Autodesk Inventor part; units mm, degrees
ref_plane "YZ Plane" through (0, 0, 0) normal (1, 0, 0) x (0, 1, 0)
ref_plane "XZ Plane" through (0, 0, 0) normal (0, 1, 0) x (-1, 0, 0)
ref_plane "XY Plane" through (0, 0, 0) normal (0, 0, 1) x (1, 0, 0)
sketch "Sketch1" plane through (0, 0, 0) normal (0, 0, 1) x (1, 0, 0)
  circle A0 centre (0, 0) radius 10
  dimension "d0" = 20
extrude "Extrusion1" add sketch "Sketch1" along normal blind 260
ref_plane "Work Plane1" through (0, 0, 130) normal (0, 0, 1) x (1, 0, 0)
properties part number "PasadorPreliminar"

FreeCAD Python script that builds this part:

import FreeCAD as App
import Part
import Sketcher

V = App.Vector
Q = App.Units.Quantity

doc = App.newDocument("Part")
body = doc.addObject("PartDesign::Body", "Body")

# Sketch on XY plane
sketch1 = body.newObject("Sketcher::SketchObject", "Sketch")
sketch1.AttachmentSupport = (doc.getObject("XY_Plane"), [""])
sketch1.MapMode = "FlatFace"
sketch1.addGeometry(Part.Circle(V(0, 0, 0), V(0, 0, 1), 10), False)
sketch1.addConstraint([
    Sketcher.Constraint("Coincident", 0, 3, -1, 1),
    Sketcher.Constraint("Diameter", 0, Q("20 mm")),
])
pad1 = body.newObject("PartDesign::Pad", "Pad")
pad1.Profile = sketch1
pad1.Length = 260

doc.recompute()
